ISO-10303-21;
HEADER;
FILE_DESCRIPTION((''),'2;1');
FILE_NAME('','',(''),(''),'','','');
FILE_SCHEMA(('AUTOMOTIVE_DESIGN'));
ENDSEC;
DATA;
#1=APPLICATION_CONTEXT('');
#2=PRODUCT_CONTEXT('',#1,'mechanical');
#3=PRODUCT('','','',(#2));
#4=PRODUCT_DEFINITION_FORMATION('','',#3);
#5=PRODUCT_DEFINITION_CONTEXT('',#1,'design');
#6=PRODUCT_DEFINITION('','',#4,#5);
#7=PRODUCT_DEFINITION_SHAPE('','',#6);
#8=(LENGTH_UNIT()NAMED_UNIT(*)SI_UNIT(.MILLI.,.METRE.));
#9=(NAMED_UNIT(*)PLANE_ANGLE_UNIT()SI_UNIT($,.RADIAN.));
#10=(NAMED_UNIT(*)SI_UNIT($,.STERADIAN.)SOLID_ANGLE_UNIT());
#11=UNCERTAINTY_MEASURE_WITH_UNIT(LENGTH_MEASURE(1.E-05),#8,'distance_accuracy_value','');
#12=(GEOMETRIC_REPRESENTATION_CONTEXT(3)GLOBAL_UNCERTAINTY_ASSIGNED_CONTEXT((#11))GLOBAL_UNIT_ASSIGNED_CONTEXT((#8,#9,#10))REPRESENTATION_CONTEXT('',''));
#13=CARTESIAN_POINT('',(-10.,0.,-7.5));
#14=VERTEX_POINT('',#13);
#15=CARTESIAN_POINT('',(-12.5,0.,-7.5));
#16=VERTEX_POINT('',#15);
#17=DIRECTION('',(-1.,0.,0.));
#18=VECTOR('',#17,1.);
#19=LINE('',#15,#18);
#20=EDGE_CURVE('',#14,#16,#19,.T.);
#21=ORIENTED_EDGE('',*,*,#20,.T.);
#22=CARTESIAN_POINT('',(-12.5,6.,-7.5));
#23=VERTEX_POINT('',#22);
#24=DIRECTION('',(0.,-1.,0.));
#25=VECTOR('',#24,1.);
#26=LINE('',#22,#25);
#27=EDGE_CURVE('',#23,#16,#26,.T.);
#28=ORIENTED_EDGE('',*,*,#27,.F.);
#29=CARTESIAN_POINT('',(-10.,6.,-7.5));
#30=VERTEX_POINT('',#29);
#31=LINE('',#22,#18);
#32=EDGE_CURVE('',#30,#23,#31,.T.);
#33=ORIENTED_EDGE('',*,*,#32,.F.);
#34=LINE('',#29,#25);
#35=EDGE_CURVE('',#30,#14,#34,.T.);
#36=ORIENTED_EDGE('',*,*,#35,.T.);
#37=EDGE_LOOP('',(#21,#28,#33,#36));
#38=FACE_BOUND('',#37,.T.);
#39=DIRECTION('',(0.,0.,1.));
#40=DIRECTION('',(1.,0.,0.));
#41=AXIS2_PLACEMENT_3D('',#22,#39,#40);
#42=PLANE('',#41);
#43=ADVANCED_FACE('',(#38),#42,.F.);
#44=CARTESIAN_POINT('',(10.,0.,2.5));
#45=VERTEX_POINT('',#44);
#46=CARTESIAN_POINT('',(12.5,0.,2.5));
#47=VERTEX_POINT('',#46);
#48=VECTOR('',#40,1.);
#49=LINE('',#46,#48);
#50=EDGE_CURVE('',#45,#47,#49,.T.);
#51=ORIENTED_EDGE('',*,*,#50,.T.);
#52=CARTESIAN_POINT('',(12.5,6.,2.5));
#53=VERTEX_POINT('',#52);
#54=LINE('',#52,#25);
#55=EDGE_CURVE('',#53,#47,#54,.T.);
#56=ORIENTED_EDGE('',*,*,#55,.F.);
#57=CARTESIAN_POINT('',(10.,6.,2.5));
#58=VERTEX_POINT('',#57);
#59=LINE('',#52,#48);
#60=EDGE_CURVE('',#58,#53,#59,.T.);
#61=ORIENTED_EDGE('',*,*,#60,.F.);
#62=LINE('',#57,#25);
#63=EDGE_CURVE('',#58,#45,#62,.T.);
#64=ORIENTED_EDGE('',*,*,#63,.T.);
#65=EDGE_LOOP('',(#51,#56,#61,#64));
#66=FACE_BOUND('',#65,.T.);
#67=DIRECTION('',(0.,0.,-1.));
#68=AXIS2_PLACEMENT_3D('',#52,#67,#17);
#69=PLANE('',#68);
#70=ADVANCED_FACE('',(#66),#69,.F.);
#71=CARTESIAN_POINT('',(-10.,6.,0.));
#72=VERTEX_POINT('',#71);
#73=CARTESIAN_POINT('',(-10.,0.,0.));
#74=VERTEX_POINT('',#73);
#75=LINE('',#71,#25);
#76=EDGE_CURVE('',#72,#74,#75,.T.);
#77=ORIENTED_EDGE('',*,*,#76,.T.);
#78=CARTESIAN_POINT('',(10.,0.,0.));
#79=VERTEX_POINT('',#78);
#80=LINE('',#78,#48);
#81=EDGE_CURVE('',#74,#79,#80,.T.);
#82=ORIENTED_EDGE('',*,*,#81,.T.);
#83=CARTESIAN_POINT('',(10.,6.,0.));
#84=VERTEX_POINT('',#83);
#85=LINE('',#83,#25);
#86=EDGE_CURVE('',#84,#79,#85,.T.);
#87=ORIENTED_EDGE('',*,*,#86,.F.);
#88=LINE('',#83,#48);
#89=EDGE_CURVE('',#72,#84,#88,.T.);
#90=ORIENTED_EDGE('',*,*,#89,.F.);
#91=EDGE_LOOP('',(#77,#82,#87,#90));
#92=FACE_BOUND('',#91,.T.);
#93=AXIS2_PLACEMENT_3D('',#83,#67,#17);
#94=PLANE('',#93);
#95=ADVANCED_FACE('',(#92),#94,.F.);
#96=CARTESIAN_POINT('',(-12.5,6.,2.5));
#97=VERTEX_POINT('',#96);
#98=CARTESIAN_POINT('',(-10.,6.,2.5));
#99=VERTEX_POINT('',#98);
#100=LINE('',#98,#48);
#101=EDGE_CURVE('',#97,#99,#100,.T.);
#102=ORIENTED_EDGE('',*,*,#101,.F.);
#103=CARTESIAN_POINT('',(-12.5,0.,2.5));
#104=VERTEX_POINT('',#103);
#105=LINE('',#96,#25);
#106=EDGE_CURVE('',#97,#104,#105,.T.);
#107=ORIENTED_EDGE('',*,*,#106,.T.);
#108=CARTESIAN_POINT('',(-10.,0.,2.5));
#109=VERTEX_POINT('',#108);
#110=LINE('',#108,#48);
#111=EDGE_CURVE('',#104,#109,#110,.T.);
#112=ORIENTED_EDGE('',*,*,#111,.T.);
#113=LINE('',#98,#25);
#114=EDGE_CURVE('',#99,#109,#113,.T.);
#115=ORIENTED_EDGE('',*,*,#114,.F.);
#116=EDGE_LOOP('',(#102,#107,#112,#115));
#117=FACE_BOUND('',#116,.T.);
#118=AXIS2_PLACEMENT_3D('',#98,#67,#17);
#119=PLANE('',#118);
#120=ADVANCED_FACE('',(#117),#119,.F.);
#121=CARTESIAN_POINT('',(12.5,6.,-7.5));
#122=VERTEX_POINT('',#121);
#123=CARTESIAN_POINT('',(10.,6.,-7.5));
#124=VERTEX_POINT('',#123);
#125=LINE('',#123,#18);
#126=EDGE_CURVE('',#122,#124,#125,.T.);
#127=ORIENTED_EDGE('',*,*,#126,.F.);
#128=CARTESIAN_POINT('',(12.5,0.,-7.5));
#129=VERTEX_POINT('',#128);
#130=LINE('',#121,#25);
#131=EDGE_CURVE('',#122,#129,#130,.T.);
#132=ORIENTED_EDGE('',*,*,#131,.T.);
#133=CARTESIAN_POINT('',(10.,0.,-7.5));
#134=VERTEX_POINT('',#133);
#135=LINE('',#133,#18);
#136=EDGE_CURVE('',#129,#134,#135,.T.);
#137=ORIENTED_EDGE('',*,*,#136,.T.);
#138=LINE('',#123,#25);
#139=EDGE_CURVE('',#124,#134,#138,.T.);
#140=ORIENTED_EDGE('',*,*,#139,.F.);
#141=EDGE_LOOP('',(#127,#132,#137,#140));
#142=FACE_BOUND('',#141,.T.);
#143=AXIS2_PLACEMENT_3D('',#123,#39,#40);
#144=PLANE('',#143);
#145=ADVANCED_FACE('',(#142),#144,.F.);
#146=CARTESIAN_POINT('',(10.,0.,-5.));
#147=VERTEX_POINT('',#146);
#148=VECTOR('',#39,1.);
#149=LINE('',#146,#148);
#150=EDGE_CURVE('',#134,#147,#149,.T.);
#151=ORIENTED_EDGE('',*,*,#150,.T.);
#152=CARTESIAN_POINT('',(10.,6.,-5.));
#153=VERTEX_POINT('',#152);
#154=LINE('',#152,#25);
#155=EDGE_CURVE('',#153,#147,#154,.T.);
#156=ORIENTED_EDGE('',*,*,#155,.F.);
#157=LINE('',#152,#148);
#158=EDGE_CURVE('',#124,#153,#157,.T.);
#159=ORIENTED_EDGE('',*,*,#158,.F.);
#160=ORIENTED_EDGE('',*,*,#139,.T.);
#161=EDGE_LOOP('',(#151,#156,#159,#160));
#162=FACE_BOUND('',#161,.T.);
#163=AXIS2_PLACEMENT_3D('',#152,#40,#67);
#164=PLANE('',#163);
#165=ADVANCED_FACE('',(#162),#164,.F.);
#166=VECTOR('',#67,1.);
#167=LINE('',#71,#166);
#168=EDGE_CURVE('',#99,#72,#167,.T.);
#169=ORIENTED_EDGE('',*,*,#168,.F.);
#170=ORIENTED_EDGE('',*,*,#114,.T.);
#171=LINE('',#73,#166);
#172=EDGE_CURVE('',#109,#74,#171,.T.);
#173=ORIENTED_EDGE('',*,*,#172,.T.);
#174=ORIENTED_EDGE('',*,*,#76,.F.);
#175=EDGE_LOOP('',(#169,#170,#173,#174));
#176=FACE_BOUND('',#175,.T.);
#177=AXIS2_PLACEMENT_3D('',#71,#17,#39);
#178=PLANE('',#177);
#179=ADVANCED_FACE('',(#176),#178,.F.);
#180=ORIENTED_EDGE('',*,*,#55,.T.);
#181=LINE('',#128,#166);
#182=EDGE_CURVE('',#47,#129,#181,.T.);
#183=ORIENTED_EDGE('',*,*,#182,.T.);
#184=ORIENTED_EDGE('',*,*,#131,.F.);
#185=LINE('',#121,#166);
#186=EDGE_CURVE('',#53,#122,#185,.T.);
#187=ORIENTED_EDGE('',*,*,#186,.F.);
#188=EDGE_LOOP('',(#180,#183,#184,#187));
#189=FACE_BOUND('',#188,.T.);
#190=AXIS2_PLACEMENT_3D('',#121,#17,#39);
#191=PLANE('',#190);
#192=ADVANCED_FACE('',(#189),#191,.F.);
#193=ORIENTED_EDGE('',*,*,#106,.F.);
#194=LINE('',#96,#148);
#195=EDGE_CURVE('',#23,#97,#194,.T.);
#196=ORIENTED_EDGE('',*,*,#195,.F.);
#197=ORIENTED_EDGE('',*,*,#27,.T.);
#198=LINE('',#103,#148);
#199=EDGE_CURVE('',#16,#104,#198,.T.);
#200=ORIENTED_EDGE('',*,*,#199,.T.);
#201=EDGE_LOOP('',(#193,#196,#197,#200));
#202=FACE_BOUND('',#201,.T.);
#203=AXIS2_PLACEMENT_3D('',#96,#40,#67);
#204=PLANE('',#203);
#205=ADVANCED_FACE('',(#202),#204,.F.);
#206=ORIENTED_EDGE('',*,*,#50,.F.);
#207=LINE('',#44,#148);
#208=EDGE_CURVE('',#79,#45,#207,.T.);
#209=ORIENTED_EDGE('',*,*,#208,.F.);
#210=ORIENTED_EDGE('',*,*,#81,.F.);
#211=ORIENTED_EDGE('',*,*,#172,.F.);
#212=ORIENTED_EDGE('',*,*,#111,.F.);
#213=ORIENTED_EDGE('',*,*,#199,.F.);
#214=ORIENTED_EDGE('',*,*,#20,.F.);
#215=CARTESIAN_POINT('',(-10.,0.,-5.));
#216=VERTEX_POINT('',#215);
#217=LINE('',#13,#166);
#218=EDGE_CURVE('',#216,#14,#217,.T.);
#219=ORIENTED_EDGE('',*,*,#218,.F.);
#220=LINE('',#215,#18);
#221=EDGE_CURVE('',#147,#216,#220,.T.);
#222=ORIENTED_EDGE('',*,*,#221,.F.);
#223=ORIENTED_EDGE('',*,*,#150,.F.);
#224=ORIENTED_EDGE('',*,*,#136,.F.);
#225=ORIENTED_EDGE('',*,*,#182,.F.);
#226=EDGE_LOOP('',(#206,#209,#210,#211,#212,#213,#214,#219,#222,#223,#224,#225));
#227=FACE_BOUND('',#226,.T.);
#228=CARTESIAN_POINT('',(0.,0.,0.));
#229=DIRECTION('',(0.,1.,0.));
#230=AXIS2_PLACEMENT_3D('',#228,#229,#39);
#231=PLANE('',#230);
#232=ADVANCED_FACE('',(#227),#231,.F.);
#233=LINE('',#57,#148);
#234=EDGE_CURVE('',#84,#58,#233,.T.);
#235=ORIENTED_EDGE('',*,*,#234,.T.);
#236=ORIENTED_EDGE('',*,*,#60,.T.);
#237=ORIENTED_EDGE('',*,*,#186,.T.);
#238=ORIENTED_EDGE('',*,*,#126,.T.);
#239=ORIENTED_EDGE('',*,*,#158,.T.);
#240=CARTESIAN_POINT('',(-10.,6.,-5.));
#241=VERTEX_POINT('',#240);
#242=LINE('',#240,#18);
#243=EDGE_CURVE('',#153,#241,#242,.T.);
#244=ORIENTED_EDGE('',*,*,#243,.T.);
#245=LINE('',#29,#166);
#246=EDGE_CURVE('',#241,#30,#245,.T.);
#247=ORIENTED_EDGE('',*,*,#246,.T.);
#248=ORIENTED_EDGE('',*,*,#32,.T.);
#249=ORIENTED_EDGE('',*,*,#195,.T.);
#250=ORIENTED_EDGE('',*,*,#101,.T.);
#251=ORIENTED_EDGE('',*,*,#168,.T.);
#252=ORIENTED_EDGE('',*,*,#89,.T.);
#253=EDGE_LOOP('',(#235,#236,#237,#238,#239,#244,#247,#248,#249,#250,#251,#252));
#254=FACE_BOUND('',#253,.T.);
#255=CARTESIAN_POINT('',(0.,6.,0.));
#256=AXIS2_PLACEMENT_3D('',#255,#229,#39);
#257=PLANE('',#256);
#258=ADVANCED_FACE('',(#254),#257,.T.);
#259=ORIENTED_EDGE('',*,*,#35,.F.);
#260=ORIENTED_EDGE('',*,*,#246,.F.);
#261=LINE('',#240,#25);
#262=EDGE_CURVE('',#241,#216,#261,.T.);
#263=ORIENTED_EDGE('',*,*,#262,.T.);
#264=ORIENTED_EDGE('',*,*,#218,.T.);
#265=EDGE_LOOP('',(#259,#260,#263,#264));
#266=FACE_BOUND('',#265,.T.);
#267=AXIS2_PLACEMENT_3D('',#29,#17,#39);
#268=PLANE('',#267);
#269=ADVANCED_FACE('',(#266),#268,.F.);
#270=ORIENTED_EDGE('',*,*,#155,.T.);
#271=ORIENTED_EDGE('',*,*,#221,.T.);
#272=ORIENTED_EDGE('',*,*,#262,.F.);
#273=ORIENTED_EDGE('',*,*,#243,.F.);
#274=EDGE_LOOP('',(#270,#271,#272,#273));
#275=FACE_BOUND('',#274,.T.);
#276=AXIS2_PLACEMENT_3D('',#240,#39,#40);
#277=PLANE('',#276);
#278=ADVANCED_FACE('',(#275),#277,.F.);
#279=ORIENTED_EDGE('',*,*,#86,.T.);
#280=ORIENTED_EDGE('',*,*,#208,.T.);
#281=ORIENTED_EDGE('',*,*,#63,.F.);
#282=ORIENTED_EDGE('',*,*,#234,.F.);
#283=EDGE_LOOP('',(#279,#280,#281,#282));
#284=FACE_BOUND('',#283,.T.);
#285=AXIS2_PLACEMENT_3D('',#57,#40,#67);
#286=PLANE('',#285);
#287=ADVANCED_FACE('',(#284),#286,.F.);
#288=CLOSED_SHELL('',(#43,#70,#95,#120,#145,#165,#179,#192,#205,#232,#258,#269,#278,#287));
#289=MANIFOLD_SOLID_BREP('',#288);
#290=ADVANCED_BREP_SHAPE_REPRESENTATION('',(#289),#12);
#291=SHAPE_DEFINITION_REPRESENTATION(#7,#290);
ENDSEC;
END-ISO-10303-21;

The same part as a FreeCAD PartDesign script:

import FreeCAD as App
import Part
import Sketcher

doc = App.newDocument("Part")
params = doc.addObject("Spreadsheet::Sheet", "Params")
for row, (alias, value) in enumerate([
    ("sketch1_width", "20 mm"),
    ("sketch1_height", "10 mm"),
    ("sketch1_width2", "2.5 mm"),
    ("pad1_length", "6 mm"),
], start=1):
    params.set(f"A{row}", alias)
    params.set(f"B{row}", "=" + value)
    params.setAlias(f"B{row}", alias)

body = doc.addObject("PartDesign::Body", "Body")

# Sketch on XZ plane
sketch1 = body.newObject("Sketcher::SketchObject", "Sketch")
sketch1.AttachmentSupport = (doc.getObject("XZ_Plane"), [""])
sketch1.MapMode = "FlatFace"
sketch1.addGeometry(Part.LineSegment(App.Vector(10, -5, 0), App.Vector(-10, -5, 0)), False)
sketch1.addGeometry(Part.LineSegment(App.Vector(-10, -5, 0), App.Vector(-10, -7.5, 0)), False)
sketch1.addGeometry(Part.LineSegment(App.Vector(-10, -7.5, 0), App.Vector(-12.5, -7.5, 0)), False)
sketch1.addGeometry(Part.LineSegment(App.Vector(-12.5, -7.5, 0), App.Vector(-12.5, 2.5, 0)), False)
sketch1.addGeometry(Part.LineSegment(App.Vector(-12.5, 2.5, 0), App.Vector(-10, 2.5, 0)), False)
sketch1.addGeometry(Part.LineSegment(App.Vector(-10, 2.5, 0), App.Vector(-10, 0, 0)), False)
sketch1.addGeometry(Part.LineSegment(App.Vector(-10, 0, 0), App.Vector(10, 0, 0)), False)
sketch1.addGeometry(Part.LineSegment(App.Vector(10, 0, 0), App.Vector(10, 2.5, 0)), False)
sketch1.addGeometry(Part.LineSegment(App.Vector(10, 2.5, 0), App.Vector(12.5, 2.5, 0)), False)
sketch1.addGeometry(Part.LineSegment(App.Vector(12.5, 2.5, 0), App.Vector(12.5, -7.5, 0)), False)
sketch1.addGeometry(Part.LineSegment(App.Vector(12.5, -7.5, 0), App.Vector(10, -7.5, 0)), False)
sketch1.addGeometry(Part.LineSegment(App.Vector(10, -7.5, 0), App.Vector(10, -5, 0)), False)
sketch1.addConstraint(Sketcher.Constraint("Coincident", 0, 2, 1, 1))
sketch1.addConstraint(Sketcher.Constraint("Coincident", 1, 2, 2, 1))
sketch1.addConstraint(Sketcher.Constraint("Coincident", 2, 2, 3, 1))
sketch1.addConstraint(Sketcher.Constraint("Coincident", 3, 2, 4, 1))
sketch1.addConstraint(Sketcher.Constraint("Coincident", 4, 2, 5, 1))
sketch1.addConstraint(Sketcher.Constraint("Coincident", 5, 2, 6, 1))
sketch1.addConstraint(Sketcher.Constraint("Coincident", 6, 2, 7, 1))
sketch1.addConstraint(Sketcher.Constraint("Coincident", 7, 2, 8, 1))
sketch1.addConstraint(Sketcher.Constraint("Coincident", 8, 2, 9, 1))
sketch1.addConstraint(Sketcher.Constraint("Coincident", 9, 2, 10, 1))
sketch1.addConstraint(Sketcher.Constraint("Coincident", 10, 2, 11, 1))
sketch1.addConstraint(Sketcher.Constraint("Coincident", 11, 2, 0, 1))
sketch1.addConstraint(Sketcher.Constraint("Horizontal", 0))
sketch1.addConstraint(Sketcher.Constraint("Vertical", 1))
sketch1.addConstraint(Sketcher.Constraint("Horizontal", 2))
sketch1.addConstraint(Sketcher.Constraint("Vertical", 3))
sketch1.addConstraint(Sketcher.Constraint("Horizontal", 4))
sketch1.addConstraint(Sketcher.Constraint("Vertical", 5))
sketch1.addConstraint(Sketcher.Constraint("Horizontal", 6))
sketch1.addConstraint(Sketcher.Constraint("Vertical", 7))
sketch1.addConstraint(Sketcher.Constraint("Horizontal", 8))
sketch1.addConstraint(Sketcher.Constraint("Vertical", 9))
sketch1.addConstraint(Sketcher.Constraint("Horizontal", 10))
sketch1.addConstraint(Sketcher.Constraint("Vertical", 11))
sketch1.addConstraint(Sketcher.Constraint("Symmetric", 5, 2, 6, 2, -1, 1))
sketch1.addConstraint(Sketcher.Constraint("Symmetric", 3, 2, 8, 2, -2))
sketch1.addConstraint(Sketcher.Constraint("Symmetric", 1, 2, 10, 2, -2))
sketch1.addConstraint(Sketcher.Constraint("Vertical", 1, 2, 4, 2))
sketch1.addConstraint(Sketcher.Constraint("Equal", 10, 1))
sketch1.addConstraint(Sketcher.Constraint("Equal", 1, 5))
sketch1.addConstraint(Sketcher.Constraint("DistanceX", 0, 2, 0, 1, 20.0))
sketch1.addConstraint(Sketcher.Constraint("DistanceY", 3, 1, 3, 2, 10.0))
sketch1.addConstraint(Sketcher.Constraint("DistanceX", 2, 2, 2, 1, 2.5))
sketch1.setExpression("Constraints[30]", "Params.sketch1_width")
sketch1.setExpression("Constraints[31]", "Params.sketch1_height")
sketch1.setExpression("Constraints[32]", "Params.sketch1_width2")
pad1 = body.newObject("PartDesign::Pad", "Pad")
pad1.Profile = sketch1
pad1.setExpression("Length", "Params.pad1_length")
pad1.Reversed = True

doc.recompute()
